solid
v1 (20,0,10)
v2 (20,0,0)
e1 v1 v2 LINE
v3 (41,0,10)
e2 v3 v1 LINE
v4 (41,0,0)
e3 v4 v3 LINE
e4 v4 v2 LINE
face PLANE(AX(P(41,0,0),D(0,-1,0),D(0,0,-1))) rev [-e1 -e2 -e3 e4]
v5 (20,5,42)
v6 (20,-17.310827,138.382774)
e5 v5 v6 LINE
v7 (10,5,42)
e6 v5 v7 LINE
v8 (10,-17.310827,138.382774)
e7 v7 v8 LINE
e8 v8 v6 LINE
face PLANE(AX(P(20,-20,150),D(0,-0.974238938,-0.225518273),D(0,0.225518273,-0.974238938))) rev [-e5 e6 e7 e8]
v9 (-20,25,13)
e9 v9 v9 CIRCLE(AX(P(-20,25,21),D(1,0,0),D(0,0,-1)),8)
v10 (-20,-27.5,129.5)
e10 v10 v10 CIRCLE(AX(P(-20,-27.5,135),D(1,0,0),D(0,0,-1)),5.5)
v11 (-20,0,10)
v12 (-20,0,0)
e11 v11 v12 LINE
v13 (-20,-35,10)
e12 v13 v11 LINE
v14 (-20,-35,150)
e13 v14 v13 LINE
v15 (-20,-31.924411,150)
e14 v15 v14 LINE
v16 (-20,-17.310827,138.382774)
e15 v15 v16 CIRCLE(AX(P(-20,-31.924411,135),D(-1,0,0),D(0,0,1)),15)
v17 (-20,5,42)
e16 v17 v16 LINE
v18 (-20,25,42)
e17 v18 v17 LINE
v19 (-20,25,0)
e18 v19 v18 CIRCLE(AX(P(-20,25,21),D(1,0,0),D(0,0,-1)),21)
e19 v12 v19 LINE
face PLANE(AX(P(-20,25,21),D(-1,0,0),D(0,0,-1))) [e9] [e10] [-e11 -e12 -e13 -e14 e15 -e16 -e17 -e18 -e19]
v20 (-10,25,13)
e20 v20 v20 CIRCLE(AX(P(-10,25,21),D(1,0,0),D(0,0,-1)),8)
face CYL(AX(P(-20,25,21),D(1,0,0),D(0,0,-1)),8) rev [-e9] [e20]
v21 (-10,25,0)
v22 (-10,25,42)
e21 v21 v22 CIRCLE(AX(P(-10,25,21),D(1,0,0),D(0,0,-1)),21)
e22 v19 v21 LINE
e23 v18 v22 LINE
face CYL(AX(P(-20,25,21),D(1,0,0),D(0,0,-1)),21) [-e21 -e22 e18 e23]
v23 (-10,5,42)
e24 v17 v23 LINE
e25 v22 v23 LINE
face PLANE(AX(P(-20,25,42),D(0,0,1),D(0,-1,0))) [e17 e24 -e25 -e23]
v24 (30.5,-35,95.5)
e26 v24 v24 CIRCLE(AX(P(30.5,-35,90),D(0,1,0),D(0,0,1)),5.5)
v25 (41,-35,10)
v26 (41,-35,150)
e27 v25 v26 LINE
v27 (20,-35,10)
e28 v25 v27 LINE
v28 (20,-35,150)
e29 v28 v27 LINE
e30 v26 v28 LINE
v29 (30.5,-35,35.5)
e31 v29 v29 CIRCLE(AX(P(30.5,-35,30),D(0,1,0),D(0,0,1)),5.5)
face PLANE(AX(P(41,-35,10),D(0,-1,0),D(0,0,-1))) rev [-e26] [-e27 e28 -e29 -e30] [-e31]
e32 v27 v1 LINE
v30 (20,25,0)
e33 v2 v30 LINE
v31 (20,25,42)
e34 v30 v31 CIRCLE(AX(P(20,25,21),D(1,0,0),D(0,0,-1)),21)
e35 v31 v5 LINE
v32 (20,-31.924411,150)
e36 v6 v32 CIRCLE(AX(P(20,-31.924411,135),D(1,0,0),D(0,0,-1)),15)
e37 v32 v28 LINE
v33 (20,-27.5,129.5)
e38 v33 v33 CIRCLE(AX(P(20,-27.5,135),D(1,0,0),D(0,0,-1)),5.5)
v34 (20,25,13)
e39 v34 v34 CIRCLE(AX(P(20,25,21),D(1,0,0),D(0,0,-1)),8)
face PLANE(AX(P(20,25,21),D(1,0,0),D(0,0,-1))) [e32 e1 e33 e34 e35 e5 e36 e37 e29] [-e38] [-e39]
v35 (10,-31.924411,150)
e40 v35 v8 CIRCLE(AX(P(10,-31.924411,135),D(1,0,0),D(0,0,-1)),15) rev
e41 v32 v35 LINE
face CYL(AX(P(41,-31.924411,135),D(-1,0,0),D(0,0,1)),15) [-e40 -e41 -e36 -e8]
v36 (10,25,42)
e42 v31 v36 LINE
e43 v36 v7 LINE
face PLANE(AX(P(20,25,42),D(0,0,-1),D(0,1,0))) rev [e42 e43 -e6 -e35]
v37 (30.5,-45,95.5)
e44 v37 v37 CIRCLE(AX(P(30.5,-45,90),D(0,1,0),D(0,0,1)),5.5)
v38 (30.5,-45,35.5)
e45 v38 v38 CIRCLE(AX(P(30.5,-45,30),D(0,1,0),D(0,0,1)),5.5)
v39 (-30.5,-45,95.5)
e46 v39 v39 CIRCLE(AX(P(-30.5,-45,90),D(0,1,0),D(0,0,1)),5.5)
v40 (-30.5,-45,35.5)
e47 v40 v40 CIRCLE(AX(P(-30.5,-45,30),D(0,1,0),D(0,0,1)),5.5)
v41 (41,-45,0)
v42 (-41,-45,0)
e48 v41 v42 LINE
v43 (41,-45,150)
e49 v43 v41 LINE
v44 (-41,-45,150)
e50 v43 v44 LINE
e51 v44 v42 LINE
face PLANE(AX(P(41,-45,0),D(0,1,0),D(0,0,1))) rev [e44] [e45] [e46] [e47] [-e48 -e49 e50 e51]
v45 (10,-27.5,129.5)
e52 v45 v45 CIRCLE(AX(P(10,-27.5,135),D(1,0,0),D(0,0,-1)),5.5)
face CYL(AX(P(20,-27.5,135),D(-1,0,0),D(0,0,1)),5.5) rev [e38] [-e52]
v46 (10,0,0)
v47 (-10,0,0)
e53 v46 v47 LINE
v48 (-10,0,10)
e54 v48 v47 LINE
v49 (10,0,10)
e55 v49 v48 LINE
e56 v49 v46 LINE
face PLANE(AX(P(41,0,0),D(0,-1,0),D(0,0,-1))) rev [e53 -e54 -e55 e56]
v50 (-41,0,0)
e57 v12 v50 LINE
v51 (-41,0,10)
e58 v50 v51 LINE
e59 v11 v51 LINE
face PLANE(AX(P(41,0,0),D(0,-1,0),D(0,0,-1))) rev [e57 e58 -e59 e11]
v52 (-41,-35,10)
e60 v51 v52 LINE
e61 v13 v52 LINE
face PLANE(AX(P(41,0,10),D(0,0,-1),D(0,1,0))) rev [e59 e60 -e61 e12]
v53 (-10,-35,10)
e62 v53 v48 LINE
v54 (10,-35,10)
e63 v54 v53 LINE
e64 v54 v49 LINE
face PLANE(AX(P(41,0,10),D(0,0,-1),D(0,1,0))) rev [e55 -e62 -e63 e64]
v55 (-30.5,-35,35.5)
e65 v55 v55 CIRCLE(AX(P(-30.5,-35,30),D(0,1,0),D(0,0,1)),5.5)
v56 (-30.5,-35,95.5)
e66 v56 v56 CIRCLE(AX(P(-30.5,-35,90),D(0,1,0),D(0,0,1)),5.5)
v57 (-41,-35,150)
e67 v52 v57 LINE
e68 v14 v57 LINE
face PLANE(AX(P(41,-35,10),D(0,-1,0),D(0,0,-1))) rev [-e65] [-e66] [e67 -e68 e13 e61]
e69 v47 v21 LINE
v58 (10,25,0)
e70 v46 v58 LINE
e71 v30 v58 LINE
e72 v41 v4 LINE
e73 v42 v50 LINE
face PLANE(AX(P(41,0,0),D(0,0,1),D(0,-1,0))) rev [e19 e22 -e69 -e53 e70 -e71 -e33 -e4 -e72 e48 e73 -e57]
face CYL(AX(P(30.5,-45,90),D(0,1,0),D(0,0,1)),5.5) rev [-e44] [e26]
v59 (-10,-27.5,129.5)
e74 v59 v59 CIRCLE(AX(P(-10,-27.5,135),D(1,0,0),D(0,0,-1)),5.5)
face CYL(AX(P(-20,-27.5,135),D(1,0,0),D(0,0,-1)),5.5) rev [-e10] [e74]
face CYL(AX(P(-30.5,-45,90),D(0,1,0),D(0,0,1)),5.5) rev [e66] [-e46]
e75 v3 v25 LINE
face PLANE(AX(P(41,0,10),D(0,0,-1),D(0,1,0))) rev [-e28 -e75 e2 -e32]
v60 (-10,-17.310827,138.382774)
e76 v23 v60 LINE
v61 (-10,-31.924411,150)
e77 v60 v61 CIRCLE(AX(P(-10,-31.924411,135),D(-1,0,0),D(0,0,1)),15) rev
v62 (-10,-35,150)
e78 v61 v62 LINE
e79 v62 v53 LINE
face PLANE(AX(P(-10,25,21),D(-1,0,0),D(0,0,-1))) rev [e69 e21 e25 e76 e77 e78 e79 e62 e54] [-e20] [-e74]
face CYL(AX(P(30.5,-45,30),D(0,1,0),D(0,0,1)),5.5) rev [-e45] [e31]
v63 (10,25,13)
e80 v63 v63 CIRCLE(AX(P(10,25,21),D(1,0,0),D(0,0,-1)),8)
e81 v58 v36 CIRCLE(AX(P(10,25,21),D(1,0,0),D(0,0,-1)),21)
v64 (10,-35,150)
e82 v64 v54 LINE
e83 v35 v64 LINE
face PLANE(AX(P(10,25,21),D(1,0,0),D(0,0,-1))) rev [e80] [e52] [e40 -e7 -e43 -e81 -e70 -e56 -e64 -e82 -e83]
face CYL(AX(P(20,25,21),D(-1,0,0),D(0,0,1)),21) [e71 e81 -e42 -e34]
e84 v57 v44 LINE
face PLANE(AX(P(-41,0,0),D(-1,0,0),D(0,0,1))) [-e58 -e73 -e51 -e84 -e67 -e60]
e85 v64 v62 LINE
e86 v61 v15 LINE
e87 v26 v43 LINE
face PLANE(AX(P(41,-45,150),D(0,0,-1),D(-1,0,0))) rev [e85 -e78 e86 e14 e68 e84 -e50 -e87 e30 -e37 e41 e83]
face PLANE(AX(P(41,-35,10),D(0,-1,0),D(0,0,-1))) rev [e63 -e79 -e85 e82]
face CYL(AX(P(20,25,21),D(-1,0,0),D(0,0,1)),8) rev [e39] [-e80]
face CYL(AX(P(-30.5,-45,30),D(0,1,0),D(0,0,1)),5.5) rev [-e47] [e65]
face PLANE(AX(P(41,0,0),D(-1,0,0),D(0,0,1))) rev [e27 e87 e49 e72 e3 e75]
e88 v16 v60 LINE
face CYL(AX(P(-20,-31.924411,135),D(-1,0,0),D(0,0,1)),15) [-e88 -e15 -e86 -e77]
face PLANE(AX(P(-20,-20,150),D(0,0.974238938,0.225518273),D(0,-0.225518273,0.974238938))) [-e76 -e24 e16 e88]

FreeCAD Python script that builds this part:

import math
import FreeCAD as App
import Part
import Sketcher
Q = App.Units.Quantity


def edges_at(feature, points):
    """Names of the edges that pass closest to the given points."""
    edges = feature.Shape.Edges
    near = lambda p: min(range(len(edges)), key=lambda i: edges[i].distToShape(Part.Vertex(*p))[0])
    return sorted({f"Edge{near(p) + 1}" for p in points})

doc = App.newDocument("Part")
params = doc.addObject("Spreadsheet::Sheet", "Params")
for row, (alias, value) in enumerate([
    ("sketch1_width", "35 mm"),
    ("sketch1_width2", "10 mm"),
    ("sketch1_height", "140 mm"),
    ("pad1_length", "82 mm"),
    ("sketch2_diameter", "11 mm"),
    ("sketch2_diameter2", "16 mm"),
    ("sketch2_radius", "21 mm"),
    ("sketch2_width", "15 mm"),
    ("sketch2_width2", "35 mm"),
    ("pad2_length", "10 mm"),
    ("sketch3_diameter", "11 mm"),
    ("pocket1_length", "10 mm"),
    ("fillet_radius", "15 mm"),
], start=1):
    params.set(f"A{row}", alias)
    params.set(f"B{row}", "=" + value)
    params.setAlias(f"B{row}", alias)

body = doc.addObject("PartDesign::Body", "Body")

# Sketch on YZ plane
sketch1 = doc.addObject("Sketcher::SketchObject", "Sketch")
body.addObject(sketch1)
sketch1.AttachmentSupport = (doc.YZ_Plane, [""])
sketch1.MapMode = "FlatFace"
sketch1.addGeometry(Part.LineSegment(App.Vector(0, 0, 0), App.Vector(0, 10, 0)), False)
sketch1.addGeometry(Part.LineSegment(App.Vector(0, 10, 0), App.Vector(-35, 10, 0)), False)
sketch1.addGeometry(Part.LineSegment(App.Vector(-35, 10, 0), App.Vector(-35, 150, 0)), False)
sketch1.addGeometry(Part.LineSegment(App.Vector(-35, 150, 0), App.Vector(-45, 150, 0)), False)
sketch1.addGeometry(Part.LineSegment(App.Vector(-45, 150, 0), App.Vector(-45, 0, 0)), False)
sketch1.addGeometry(Part.LineSegment(App.Vector(-45, 0, 0), App.Vector(0, 0, 0)), False)
sketch1.addConstraint(Sketcher.Constraint("Coincident", 0, 2, 1, 1))
sketch1.addConstraint(Sketcher.Constraint("Coincident", 1, 2, 2, 1))
sketch1.addConstraint(Sketcher.Constraint("Coincident", 2, 2, 3, 1))
sketch1.addConstraint(Sketcher.Constraint("Coincident", 3, 2, 4, 1))
sketch1.addConstraint(Sketcher.Constraint("Coincident", 4, 2, 5, 1))
sketch1.addConstraint(Sketcher.Constraint("Coincident", 5, 2, 0, 1))
sketch1.addConstraint(Sketcher.Constraint("Vertical", 0))
sketch1.addConstraint(Sketcher.Constraint("Horizontal", 1))
sketch1.addConstraint(Sketcher.Constraint("Vertical", 2))
sketch1.addConstraint(Sketcher.Constraint("Horizontal", 3))
sketch1.addConstraint(Sketcher.Constraint("Vertical", 4))
sketch1.addConstraint(Sketcher.Constraint("Horizontal", 5))
sketch1.addConstraint(Sketcher.Constraint("Coincident", 5, 2, -1, 1))
sketch1.addConstraint(Sketcher.Constraint("Equal", 3, 0))
sketch1.addConstraint(Sketcher.Constraint("DistanceX", 1, 2, 1, 1, Q("35 mm")))
sketch1.addConstraint(Sketcher.Constraint("DistanceX", 3, 2, 3, 1, Q("10 mm")))
sketch1.addConstraint(Sketcher.Constraint("DistanceY", 2, 1, 2, 2, Q("140 mm")))
sketch1.setExpression("Constraints[14]", "Params.sketch1_width")
sketch1.setExpression("Constraints[15]", "Params.sketch1_width2")
sketch1.setExpression("Constraints[16]", "Params.sketch1_height")
pad1 = doc.addObject("PartDesign::Pad", "Pad")
body.addObject(pad1)
pad1.Profile = sketch1
pad1.setExpression("Length", "Params.pad1_length")
pad1.Midplane = True

# Sketch on YZ plane
sketch2 = doc.addObject("Sketcher::SketchObject", "Sketch001")
body.addObject(sketch2)
sketch2.AttachmentSupport = (doc.YZ_Plane, [""])
sketch2.MapMode = "FlatFace"
sketch2.AttachmentOffset = App.Placement(App.Vector(0, 0, 10), App.Rotation())
sketch2.addGeometry(Part.LineSegment(App.Vector(-20, 150, 0), App.Vector(-35, 150, 0)), False)
sketch2.addGeometry(Part.LineSegment(App.Vector(-35, 150, 0), App.Vector(-35, 10, 0)), False)
sketch2.addGeometry(Part.LineSegment(App.Vector(-35, 10, 0), App.Vector(0, 10, 0)), False)
sketch2.addGeometry(Part.LineSegment(App.Vector(0, 10, 0), App.Vector(0, 0, 0)), False)
sketch2.addGeometry(Part.LineSegment(App.Vector(0, 0, 0), App.Vector(25, 0, 0)), False)
sketch2.addGeometry(Part.ArcOfCircle(Part.Circle(App.Vector(25, 21, 0), App.Vector(0, 0, 1), 21), math.radians(-90), math.radians(90)), False)
sketch2.addGeometry(Part.LineSegment(App.Vector(25, 42, 0), App.Vector(5, 42, 0)), False)
sketch2.addGeometry(Part.LineSegment(App.Vector(5, 42, 0), App.Vector(-20, 150, 0)), False)
sketch2.addGeometry(Part.Circle(App.Vector(-27.5, 135, 0), App.Vector(0, 0, 1), 5.5), False)
sketch2.addGeometry(Part.Circle(App.Vector(25, 21, 0), App.Vector(0, 0, 1), 8), False)
sketch2.addConstraint(Sketcher.Constraint("Coincident", 0, 2, 1, 1))
sketch2.addConstraint(Sketcher.Constraint("Coincident", 1, 2, 2, 1))
sketch2.addConstraint(Sketcher.Constraint("Coincident", 2, 2, 3, 1))
sketch2.addConstraint(Sketcher.Constraint("Coincident", 3, 2, 4, 1))
sketch2.addConstraint(Sketcher.Constraint("Tangent", 4, 2, 5, 1))
sketch2.addConstraint(Sketcher.Constraint("Tangent", 5, 2, 6, 1))
sketch2.addConstraint(Sketcher.Constraint("Coincident", 6, 2, 7, 1))
sketch2.addConstraint(Sketcher.Constraint("Coincident", 7, 2, 0, 1))
sketch2.addConstraint(Sketcher.Constraint("Horizontal", 0))
sketch2.addConstraint(Sketcher.Constraint("Vertical", 1))
sketch2.addConstraint(Sketcher.Constraint("Horizontal", 2))
sketch2.addConstraint(Sketcher.Constraint("Vertical", 3))
sketch2.addConstraint(Sketcher.Constraint("Horizontal", 4))
sketch2.addConstraint(Sketcher.Constraint("Horizontal", 6))
sketch2.addConstraint(Sketcher.Constraint("Coincident", 3, 2, -1, 1))
sketch2.addConstraint(Sketcher.Constraint("Coincident", 9, 3, 5, 3))
sketch2.addConstraint(Sketcher.Constraint("Diameter", 8, Q("11 mm")))
sketch2.addConstraint(Sketcher.Constraint("Diameter", 9, Q("16 mm")))
sketch2.addConstraint(Sketcher.Constraint("Radius", 5, Q("21 mm")))
sketch2.addConstraint(Sketcher.Constraint("DistanceX", 0, 2, 0, 1, Q("15 mm")))
sketch2.addConstraint(Sketcher.Constraint("DistanceX", 2, 1, 2, 2, Q("35 mm")))
sketch2.addConstraint(Sketcher.Constraint("DistanceX", 4, 1, 4, 2, Q("25 mm")))
sketch2.addConstraint(Sketcher.Constraint("DistanceX", 6, 2, 6, 1, Q("20 mm")))
sketch2.addConstraint(Sketcher.Constraint("DistanceY", 1, 2, 1, 1, Q("140 mm")))
sketch2.addConstraint(Sketcher.Constraint("DistanceY", 3, 2, 3, 1, Q("10 mm")))
sketch2.addConstraint(Sketcher.Constraint("DistanceY", -1, 1, 8, 3, Q("135 mm")))
sketch2.addConstraint(Sketcher.Constraint("DistanceX", 8, 3, -1, 1, Q("27.5 mm")))
sketch2.setExpression("Constraints[16]", "Params.sketch2_diameter")
sketch2.setExpression("Constraints[17]", "Params.sketch2_diameter2")
sketch2.setExpression("Constraints[18]", "Params.sketch2_radius")
sketch2.setExpression("Constraints[19]", "Params.sketch2_width")
sketch2.setExpression("Constraints[20]", "Params.sketch2_width2")
pad2 = doc.addObject("PartDesign::Pad", "Pad001")
body.addObject(pad2)
pad2.Profile = sketch2
pad2.setExpression("Length", "Params.pad2_length")
doc.recompute()

mirrored = doc.addObject("PartDesign::Mirrored", "Mirrored")
body.addObject(mirrored)
mirrored.Originals = [pad2]
mirrored.MirrorPlane = (doc.YZ_Plane, [""])
body.Tip = mirrored

# Sketch on XZ plane
sketch3 = doc.addObject("Sketcher::SketchObject", "Sketch002")
body.addObject(sketch3)
sketch3.AttachmentSupport = (doc.XZ_Plane, [""])
sketch3.MapMode = "FlatFace"
sketch3.AttachmentOffset = App.Placement(App.Vector(0, 0, 35), App.Rotation())
sketch3.addGeometry(Part.Circle(App.Vector(30.5, 30, 0), App.Vector(0, 0, 1), 5.5), False)
sketch3.addGeometry(Part.Circle(App.Vector(30.5, 90, 0), App.Vector(0, 0, 1), 5.5), False)
sketch3.addGeometry(Part.Circle(App.Vector(-30.5, 90, 0), App.Vector(0, 0, 1), 5.5), False)
sketch3.addGeometry(Part.Circle(App.Vector(-30.5, 30, 0), App.Vector(0, 0, 1), 5.5), False)
sketch3.addConstraint(Sketcher.Constraint("Equal", 0, 1))
sketch3.addConstraint(Sketcher.Constraint("Equal", 1, 2))
sketch3.addConstraint(Sketcher.Constraint("Equal", 2, 3))
sketch3.addConstraint(Sketcher.Constraint("Symmetric", 1, 3, 2, 3, -2))
sketch3.addConstraint(Sketcher.Constraint("Symmetric", 0, 3, 3, 3, -2))
sketch3.addConstraint(Sketcher.Constraint("Vertical", 0, 3, 1, 3))
sketch3.addConstraint(Sketcher.Constraint("Diameter", 0, Q("11 mm")))
sketch3.addConstraint(Sketcher.Constraint("DistanceY", -1, 1, 0, 3, Q("30 mm")))
sketch3.addConstraint(Sketcher.Constraint("DistanceY", -1, 1, 1, 3, Q("90 mm")))
sketch3.addConstraint(Sketcher.Constraint("DistanceX", 2, 3, 1, 3, Q("61 mm")))
sketch3.setExpression("Constraints[6]", "Params.sketch3_diameter")
pocket1 = doc.addObject("PartDesign::Pocket", "Pocket")
body.addObject(pocket1)
pocket1.Profile = sketch3
pocket1.setExpression("Length", "Params.pocket1_length")
pocket1.Reversed = True
doc.recompute()

fillet = doc.addObject("PartDesign::Fillet", "Fillet")
body.addObject(fillet)
fillet.Base = (pocket1, edges_at(pocket1, [(15, -20, 150), (-15, -20, 150)]))
fillet.setExpression("Radius", "Params.fillet_radius")

doc.recompute()
